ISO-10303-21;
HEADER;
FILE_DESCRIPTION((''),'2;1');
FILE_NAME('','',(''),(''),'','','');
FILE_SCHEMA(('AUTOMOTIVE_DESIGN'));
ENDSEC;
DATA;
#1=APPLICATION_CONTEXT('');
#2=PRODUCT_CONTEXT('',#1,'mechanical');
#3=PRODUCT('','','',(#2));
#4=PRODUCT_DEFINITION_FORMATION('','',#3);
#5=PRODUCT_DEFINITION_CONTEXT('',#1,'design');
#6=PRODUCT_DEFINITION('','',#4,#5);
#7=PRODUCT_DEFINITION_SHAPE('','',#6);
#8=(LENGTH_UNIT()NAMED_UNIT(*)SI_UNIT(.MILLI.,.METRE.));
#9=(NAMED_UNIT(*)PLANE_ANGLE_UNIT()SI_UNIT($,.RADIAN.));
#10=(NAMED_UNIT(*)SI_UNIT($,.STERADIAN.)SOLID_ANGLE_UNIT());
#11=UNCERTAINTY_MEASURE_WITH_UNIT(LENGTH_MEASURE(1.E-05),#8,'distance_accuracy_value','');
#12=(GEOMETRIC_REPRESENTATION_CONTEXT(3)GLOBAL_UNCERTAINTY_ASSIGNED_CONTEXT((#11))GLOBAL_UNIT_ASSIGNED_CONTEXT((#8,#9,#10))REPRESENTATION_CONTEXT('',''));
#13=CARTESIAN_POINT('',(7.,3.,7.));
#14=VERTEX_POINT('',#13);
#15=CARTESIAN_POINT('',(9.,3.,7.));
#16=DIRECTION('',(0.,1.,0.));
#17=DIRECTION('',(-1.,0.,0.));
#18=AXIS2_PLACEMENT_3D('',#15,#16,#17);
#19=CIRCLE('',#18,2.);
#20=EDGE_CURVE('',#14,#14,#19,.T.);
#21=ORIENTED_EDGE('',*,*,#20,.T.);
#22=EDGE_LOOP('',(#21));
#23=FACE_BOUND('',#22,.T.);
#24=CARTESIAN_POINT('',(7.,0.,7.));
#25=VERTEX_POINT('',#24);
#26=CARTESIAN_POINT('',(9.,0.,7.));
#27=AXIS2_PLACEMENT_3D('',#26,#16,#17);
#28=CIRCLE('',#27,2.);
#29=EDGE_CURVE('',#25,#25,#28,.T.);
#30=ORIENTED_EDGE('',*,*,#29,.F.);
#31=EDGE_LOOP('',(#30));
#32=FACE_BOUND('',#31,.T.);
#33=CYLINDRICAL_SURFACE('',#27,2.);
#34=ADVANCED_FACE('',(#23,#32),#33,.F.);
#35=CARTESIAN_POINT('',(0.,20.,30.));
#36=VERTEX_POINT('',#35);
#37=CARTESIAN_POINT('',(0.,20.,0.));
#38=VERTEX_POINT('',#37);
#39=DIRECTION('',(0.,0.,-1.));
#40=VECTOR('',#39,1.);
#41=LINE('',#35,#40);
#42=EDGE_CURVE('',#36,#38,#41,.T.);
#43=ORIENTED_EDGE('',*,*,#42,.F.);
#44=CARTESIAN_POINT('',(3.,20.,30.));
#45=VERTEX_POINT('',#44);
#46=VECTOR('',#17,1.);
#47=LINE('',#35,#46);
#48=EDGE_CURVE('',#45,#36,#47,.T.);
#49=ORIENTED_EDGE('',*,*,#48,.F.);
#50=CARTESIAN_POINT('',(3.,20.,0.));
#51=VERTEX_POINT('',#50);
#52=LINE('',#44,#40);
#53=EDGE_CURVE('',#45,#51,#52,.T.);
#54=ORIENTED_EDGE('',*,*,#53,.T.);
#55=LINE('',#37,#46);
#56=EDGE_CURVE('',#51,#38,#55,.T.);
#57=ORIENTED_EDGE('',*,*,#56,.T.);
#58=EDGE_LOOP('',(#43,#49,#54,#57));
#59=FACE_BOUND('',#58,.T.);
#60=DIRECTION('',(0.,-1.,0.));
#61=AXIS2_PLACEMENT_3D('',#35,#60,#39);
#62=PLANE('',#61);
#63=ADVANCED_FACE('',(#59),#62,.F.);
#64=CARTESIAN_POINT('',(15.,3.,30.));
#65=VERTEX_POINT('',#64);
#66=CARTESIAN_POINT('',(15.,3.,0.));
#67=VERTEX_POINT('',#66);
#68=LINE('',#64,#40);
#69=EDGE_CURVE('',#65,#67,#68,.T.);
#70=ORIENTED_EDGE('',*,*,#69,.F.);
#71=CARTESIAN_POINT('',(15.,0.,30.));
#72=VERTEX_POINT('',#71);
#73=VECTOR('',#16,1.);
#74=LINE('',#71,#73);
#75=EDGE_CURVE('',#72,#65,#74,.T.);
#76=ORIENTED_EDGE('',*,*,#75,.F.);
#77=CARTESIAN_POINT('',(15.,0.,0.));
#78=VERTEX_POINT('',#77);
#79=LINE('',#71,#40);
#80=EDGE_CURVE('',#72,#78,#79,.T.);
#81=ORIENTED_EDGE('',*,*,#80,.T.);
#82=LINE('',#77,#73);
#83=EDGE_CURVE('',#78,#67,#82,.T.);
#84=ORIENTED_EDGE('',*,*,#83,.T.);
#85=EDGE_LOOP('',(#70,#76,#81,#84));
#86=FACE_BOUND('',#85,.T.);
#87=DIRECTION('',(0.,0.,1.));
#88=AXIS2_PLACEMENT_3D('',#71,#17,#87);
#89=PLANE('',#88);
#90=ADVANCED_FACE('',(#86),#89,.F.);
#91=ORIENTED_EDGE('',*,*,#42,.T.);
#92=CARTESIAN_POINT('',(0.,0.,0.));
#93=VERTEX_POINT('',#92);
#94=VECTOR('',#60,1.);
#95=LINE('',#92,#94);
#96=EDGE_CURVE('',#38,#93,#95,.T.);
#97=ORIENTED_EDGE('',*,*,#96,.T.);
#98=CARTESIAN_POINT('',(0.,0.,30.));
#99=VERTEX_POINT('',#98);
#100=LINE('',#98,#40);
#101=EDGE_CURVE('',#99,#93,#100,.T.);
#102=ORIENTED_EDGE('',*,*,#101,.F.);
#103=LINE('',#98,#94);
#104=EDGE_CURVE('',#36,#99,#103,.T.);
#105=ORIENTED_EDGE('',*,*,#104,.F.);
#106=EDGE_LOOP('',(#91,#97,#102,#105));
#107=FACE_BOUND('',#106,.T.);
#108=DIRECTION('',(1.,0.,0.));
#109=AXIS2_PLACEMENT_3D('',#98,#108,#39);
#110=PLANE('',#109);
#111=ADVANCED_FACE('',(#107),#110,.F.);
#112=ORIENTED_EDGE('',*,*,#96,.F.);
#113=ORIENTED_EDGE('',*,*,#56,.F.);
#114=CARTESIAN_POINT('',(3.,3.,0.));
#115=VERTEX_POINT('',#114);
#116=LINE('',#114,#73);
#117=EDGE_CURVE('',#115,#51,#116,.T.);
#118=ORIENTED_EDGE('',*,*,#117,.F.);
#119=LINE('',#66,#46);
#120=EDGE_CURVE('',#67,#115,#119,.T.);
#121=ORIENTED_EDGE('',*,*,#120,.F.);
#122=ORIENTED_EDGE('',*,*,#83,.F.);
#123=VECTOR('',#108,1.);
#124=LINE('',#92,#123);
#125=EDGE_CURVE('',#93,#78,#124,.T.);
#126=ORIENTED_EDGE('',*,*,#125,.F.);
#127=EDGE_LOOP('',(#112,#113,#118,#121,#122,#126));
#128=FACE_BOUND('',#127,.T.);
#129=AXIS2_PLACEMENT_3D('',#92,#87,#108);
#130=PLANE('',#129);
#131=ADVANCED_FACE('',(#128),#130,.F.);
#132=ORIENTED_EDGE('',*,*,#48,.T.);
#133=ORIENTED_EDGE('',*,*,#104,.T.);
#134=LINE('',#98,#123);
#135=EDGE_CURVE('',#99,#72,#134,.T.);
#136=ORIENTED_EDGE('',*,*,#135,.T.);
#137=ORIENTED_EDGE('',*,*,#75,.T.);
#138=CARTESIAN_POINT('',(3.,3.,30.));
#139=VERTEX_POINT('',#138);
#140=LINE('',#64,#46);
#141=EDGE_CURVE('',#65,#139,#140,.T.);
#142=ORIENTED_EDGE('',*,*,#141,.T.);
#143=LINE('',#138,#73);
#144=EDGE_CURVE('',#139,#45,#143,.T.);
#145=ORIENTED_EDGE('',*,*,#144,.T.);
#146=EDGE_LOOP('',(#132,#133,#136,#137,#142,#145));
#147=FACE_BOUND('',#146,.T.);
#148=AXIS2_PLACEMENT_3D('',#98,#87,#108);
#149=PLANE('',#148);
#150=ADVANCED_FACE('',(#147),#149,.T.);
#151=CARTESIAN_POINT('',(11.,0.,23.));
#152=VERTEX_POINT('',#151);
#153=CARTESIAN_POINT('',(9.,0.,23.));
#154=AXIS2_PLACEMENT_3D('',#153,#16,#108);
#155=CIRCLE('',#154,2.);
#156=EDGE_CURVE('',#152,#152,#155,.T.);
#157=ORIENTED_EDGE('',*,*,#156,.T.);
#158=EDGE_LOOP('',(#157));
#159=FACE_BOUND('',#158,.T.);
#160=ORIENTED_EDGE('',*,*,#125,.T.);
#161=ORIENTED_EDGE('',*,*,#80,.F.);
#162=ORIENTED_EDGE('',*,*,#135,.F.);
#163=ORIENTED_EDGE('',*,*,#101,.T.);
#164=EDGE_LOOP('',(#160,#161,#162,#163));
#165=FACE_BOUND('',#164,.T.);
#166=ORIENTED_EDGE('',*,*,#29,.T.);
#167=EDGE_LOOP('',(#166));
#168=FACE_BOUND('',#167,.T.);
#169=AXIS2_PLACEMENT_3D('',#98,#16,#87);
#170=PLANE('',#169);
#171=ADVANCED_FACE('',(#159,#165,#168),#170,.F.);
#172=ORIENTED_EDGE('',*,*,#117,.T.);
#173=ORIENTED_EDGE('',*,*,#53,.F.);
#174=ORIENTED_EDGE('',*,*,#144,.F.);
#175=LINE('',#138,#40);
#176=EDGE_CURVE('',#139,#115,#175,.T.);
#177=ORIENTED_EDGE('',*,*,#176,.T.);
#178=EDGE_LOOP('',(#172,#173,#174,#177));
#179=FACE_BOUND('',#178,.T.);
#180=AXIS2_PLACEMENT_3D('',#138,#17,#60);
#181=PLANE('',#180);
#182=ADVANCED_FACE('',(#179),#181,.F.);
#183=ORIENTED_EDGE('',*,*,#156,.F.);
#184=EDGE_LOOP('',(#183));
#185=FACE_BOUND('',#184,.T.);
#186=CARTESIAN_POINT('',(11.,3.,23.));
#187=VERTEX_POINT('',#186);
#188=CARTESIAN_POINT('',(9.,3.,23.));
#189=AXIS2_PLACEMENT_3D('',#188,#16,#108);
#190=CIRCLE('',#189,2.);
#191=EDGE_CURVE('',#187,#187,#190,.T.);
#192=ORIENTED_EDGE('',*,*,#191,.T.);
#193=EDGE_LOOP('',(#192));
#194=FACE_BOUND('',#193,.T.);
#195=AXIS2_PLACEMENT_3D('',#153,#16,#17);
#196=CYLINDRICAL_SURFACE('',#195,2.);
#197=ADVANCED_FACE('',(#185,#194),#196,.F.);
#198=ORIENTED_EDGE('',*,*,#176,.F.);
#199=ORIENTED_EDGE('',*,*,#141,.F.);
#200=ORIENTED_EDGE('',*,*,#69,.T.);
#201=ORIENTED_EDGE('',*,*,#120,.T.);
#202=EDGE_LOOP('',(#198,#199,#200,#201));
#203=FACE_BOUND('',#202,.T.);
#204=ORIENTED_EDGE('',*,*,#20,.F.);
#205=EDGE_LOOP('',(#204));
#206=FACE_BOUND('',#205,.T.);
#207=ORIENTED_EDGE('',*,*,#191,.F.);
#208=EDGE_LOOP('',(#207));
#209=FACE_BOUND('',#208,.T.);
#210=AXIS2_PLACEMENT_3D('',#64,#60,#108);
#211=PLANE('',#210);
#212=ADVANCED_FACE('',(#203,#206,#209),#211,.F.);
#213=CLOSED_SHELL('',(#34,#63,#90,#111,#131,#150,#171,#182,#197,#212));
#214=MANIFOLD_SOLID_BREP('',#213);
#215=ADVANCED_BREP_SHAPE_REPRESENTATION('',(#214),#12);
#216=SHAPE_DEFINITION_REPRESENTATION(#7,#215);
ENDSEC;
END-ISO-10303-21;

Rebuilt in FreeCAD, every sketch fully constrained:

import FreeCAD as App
import Part
import Sketcher

V = App.Vector
Q = App.Units.Quantity

doc = App.newDocument("Part")
body = doc.addObject("PartDesign::Body", "Body")

sketch1 = doc.addObject("Sketcher::SketchObject", "Sketch")
body.addObject(sketch1)
sketch1.AttachmentSupport = (doc.XY_Plane, [""])
sketch1.MapMode = "FlatFace"
sketch1.addGeometry([
    Part.LineSegment(V(0, 20, 0), V(0, 0, 0)),
    Part.LineSegment(V(0, 0, 0), V(15, 0, 0)),
    Part.LineSegment(V(15, 0, 0), V(15, 3, 0)),
    Part.LineSegment(V(15, 3, 0), V(3, 3, 0)),
    Part.LineSegment(V(3, 3, 0), V(3, 20, 0)),
    Part.LineSegment(V(3, 20, 0), V(0, 20, 0)),
], False)
sketch1.addConstraint([
    Sketcher.Constraint("Coincident", 0, 2, 1, 1),
    Sketcher.Constraint("Coincident", 1, 2, 2, 1),
    Sketcher.Constraint("Coincident", 2, 2, 3, 1),
    Sketcher.Constraint("Coincident", 3, 2, 4, 1),
    Sketcher.Constraint("Coincident", 4, 2, 5, 1),
    Sketcher.Constraint("Coincident", 5, 2, 0, 1),
    Sketcher.Constraint("Vertical", 0),
    Sketcher.Constraint("Horizontal", 1),
    Sketcher.Constraint("Vertical", 2),
    Sketcher.Constraint("Horizontal", 3),
    Sketcher.Constraint("Vertical", 4),
    Sketcher.Constraint("Horizontal", 5),
    Sketcher.Constraint("Coincident", 0, 2, -1, 1),
    Sketcher.Constraint("Equal", 5, 2),
    Sketcher.Constraint("DistanceX", 1, 1, 1, 2, Q("15 mm")),
    Sketcher.Constraint("DistanceX", 3, 2, 3, 1, Q("12 mm")),
    Sketcher.Constraint("DistanceY", 0, 2, 0, 1, Q("20 mm")),
])
pad1 = doc.addObject("PartDesign::Pad", "Pad")
body.addObject(pad1)
pad1.Profile = sketch1
pad1.Length = 30

sketch2 = doc.addObject("Sketcher::SketchObject", "Sketch001")
body.addObject(sketch2)
sketch2.AttachmentSupport = (doc.XZ_Plane, [""])
sketch2.MapMode = "FlatFace"
sketch2.AttachmentOffset = App.Placement(V(0, 0, -3), App.Rotation())
sketch2.addGeometry([
    Part.Circle(V(9, 7, 0), V(0, 0, 1), 2),
    Part.Circle(V(9, 23, 0), V(0, 0, 1), 2),
], False)
sketch2.addConstraint([
    Sketcher.Constraint("Equal", 0, 1),
    Sketcher.Constraint("Vertical", 0, 3, 1, 3),
    Sketcher.Constraint("Diameter", 0, Q("4 mm")),
    Sketcher.Constraint("DistanceX", -1, 1, 0, 3, Q("9 mm")),
    Sketcher.Constraint("DistanceY", -1, 1, 0, 3, Q("7 mm")),
    Sketcher.Constraint("DistanceY", -1, 1, 1, 3, Q("23 mm")),
])
pocket1 = doc.addObject("PartDesign::Pocket", "Pocket")
body.addObject(pocket1)
pocket1.Profile = sketch2
pocket1.Length = 3
pocket1.Reversed = True

doc.recompute()
